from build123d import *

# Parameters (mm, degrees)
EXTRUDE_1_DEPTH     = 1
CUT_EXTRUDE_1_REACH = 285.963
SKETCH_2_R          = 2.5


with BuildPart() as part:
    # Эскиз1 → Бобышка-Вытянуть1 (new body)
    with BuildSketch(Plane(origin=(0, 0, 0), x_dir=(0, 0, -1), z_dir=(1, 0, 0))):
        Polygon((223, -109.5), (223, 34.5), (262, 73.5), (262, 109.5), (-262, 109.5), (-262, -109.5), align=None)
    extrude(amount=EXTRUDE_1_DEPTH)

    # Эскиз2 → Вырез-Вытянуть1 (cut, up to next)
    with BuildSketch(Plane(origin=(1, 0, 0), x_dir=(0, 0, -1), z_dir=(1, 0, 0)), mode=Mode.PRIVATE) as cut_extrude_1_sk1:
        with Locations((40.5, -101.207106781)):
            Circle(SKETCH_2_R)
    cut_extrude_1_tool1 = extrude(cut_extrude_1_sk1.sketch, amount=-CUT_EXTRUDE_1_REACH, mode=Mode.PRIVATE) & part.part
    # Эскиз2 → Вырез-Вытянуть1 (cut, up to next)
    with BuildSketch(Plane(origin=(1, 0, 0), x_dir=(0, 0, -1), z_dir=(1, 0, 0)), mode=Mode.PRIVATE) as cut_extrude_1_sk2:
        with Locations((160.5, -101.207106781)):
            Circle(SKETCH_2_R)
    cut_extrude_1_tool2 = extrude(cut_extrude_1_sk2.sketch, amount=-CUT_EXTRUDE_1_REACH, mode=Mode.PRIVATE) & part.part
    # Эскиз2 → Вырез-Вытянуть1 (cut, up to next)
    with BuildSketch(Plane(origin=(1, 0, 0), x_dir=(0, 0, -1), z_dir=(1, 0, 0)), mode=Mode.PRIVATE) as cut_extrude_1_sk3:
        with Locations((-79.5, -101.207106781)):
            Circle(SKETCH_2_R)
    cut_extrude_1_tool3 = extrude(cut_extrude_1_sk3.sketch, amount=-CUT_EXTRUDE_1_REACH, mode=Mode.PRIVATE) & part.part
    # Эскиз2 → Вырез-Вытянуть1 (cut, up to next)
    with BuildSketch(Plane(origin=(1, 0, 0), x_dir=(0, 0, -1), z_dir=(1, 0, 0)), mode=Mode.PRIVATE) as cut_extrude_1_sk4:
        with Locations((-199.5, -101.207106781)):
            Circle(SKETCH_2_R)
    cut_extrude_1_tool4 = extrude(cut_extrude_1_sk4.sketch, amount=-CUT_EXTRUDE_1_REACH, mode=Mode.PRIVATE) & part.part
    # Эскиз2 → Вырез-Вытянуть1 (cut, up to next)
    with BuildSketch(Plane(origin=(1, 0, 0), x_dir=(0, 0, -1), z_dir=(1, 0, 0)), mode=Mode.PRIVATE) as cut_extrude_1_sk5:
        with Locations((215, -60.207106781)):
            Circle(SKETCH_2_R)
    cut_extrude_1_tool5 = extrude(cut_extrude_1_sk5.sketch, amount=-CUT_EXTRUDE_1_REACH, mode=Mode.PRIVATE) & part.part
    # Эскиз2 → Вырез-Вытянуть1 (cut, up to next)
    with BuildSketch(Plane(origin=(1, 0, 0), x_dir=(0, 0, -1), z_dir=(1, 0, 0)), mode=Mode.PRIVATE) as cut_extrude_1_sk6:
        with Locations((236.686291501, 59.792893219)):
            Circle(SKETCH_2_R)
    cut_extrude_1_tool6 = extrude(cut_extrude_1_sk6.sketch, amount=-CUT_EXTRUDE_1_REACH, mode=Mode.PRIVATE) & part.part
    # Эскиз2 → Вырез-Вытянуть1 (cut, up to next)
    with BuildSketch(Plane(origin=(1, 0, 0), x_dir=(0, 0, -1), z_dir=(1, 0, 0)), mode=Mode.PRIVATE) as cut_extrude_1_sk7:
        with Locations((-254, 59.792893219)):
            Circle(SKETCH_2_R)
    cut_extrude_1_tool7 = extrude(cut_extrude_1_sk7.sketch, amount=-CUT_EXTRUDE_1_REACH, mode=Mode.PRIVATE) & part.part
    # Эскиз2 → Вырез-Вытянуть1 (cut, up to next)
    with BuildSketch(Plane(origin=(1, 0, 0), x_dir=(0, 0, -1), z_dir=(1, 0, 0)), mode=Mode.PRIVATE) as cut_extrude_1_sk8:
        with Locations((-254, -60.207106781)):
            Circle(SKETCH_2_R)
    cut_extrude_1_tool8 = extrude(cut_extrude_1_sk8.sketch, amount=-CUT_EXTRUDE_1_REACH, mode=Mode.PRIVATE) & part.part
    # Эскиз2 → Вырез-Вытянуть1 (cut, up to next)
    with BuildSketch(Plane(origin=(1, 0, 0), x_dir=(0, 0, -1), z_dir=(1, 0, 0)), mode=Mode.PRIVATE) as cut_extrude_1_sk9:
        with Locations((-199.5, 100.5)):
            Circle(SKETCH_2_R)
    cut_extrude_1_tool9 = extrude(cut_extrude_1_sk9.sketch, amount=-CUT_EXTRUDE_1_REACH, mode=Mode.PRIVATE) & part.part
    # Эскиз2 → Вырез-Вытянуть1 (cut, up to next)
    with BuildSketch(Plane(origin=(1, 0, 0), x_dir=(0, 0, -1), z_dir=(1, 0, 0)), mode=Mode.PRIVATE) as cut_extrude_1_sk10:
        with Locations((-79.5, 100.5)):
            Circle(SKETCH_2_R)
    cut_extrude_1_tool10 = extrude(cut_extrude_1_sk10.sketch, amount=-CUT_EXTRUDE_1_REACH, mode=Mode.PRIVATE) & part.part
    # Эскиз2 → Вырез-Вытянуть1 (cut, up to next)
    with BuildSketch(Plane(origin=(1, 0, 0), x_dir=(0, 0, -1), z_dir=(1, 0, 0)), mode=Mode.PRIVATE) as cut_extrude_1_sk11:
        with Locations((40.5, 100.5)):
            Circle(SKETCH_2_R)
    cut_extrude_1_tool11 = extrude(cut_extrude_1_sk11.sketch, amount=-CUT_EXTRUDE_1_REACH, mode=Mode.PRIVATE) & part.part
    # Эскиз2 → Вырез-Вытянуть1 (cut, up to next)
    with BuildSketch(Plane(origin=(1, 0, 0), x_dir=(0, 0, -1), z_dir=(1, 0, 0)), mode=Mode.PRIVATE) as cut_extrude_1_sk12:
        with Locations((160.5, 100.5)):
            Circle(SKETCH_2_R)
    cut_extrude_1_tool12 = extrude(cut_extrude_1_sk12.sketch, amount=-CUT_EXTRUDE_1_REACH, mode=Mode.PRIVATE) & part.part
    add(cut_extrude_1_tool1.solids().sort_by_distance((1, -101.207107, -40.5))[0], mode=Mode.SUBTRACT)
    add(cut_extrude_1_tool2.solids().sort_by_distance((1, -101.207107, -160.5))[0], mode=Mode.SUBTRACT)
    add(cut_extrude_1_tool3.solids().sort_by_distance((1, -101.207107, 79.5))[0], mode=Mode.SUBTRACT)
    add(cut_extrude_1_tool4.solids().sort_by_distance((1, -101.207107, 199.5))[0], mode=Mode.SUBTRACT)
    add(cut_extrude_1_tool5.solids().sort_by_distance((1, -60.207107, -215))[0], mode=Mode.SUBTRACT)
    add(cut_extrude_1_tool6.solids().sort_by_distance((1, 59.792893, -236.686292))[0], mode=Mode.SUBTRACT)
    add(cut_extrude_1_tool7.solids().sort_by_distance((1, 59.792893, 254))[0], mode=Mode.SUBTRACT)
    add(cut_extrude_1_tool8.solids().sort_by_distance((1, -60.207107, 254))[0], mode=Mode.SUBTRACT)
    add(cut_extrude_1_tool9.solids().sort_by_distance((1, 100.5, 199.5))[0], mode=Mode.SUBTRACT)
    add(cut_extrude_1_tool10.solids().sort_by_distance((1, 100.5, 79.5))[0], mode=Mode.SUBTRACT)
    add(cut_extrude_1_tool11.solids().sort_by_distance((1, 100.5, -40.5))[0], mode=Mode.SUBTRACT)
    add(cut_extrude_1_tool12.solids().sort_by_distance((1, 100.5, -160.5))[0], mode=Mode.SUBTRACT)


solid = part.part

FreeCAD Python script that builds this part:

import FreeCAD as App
import Part
import Sketcher

V = App.Vector


def add_polygon(sketch, points):
    """Adds a closed chain of lines whose ends are joined by coincident constraints."""
    first, n = sketch.GeometryCount, len(points)
    for a, b in zip(points, points[1:] + points[:1]):
        sketch.addGeometry(Part.LineSegment(App.Vector(*a, 0), App.Vector(*b, 0)), False)
    for i in range(n):
        sketch.addConstraint(Sketcher.Constraint("Coincident", first + i, 2, first + (i + 1) % n, 1))

doc = App.newDocument("Part")
body = doc.addObject("PartDesign::Body", "Body")

# Sketch on YZ plane
sketch1 = doc.addObject("Sketcher::SketchObject", "Sketch")
body.addObject(sketch1)
sketch1.AttachmentSupport = (doc.YZ_Plane, [""])
sketch1.MapMode = "FlatFace"
add_polygon(sketch1, [(-110, -223), (34, -223), (74, -262), (110, -262), (110, 262), (-110, 262)])  # lines 0-5
sketch1.addConstraint([
    Sketcher.Constraint("Horizontal", 0),
    Sketcher.Constraint("Horizontal", 2),
    Sketcher.Constraint("Vertical", 3),
    Sketcher.Constraint("Horizontal", 4),
    Sketcher.Constraint("Vertical", 5),
    Sketcher.Constraint("Symmetric", 2, 2, 4, 2, -1, 1),
    Sketcher.Constraint("DistanceX", 0, 1, 0, 2, 144.0),
    Sketcher.Constraint("DistanceX", 2, 1, 2, 2, 36.0),
    Sketcher.Constraint("DistanceX", 4, 2, 4, 1, 219.0),
    Sketcher.Constraint("DistanceY", 3, 1, 3, 2, 524.0),
    Sketcher.Constraint("DistanceY", 5, 2, 5, 1, 485.0),
])
pad1 = doc.addObject("PartDesign::Pad", "Pad")
body.addObject(pad1)
pad1.Profile = sketch1
pad1.Length = 1

# Sketch on YZ plane
sketch2 = doc.addObject("Sketcher::SketchObject", "Sketch001")
body.addObject(sketch2)
sketch2.AttachmentSupport = (doc.YZ_Plane, [""])
sketch2.MapMode = "FlatFace"
sketch2.AttachmentOffset = App.Placement(V(0, 0, 1), App.Rotation())
sketch2.addGeometry(Part.Circle(V(-101.2, -40.5, 0), V(0, 0, 1), 2.5), False)
sketch2.addConstraint([
    Sketcher.Constraint("Diameter", 0, 5.0),
    Sketcher.Constraint("DistanceY", 0, 3, -1, 1, 40.5),
    Sketcher.Constraint("DistanceX", 0, 3, -1, 1, 101.207107),
])
pocket1 = doc.addObject("PartDesign::Pocket", "Pocket")
body.addObject(pocket1)
pocket1.Profile = sketch2
pocket1.Type = "UpToFirst"

# Sketch on YZ plane
sketch3 = doc.addObject("Sketcher::SketchObject", "Sketch002")
body.addObject(sketch3)
sketch3.AttachmentSupport = (doc.YZ_Plane, [""])
sketch3.MapMode = "FlatFace"
sketch3.AttachmentOffset = App.Placement(V(0, 0, 1), App.Rotation())
sketch3.addGeometry(Part.Circle(V(-101.2, -160.5, 0), V(0, 0, 1), 2.5), False)
sketch3.addConstraint([
    Sketcher.Constraint("Diameter", 0, 5.0),
    Sketcher.Constraint("DistanceY", 0, 3, -1, 1, 160.5),
    Sketcher.Constraint("DistanceX", 0, 3, -1, 1, 101.207107),
])
pocket2 = doc.addObject("PartDesign::Pocket", "Pocket001")
body.addObject(pocket2)
pocket2.Profile = sketch3
pocket2.Type = "UpToFirst"

# Sketch on YZ plane
sketch4 = doc.addObject("Sketcher::SketchObject", "Sketch003")
body.addObject(sketch4)
sketch4.AttachmentSupport = (doc.YZ_Plane, [""])
sketch4.MapMode = "FlatFace"
sketch4.AttachmentOffset = App.Placement(V(0, 0, 1), App.Rotation())
sketch4.addGeometry(Part.Circle(V(-101.2, 79.5, 0), V(0, 0, 1), 2.5), False)
sketch4.addConstraint([
    Sketcher.Constraint("Diameter", 0, 5.0),
    Sketcher.Constraint("DistanceY", -1, 1, 0, 3, 79.5),
    Sketcher.Constraint("DistanceX", 0, 3, -1, 1, 101.207107),
])
pocket3 = doc.addObject("PartDesign::Pocket", "Pocket002")
body.addObject(pocket3)
pocket3.Profile = sketch4
pocket3.Type = "UpToFirst"

# Sketch on YZ plane
sketch5 = doc.addObject("Sketcher::SketchObject", "Sketch004")
body.addObject(sketch5)
sketch5.AttachmentSupport = (doc.YZ_Plane, [""])
sketch5.MapMode = "FlatFace"
sketch5.AttachmentOffset = App.Placement(V(0, 0, 1), App.Rotation())
sketch5.addGeometry(Part.Circle(V(-101.2, 199.5, 0), V(0, 0, 1), 2.5), False)
sketch5.addConstraint([
    Sketcher.Constraint("Diameter", 0, 5.0),
    Sketcher.Constraint("DistanceY", -1, 1, 0, 3, 199.5),
    Sketcher.Constraint("DistanceX", 0, 3, -1, 1, 101.207107),
])
pocket4 = doc.addObject("PartDesign::Pocket", "Pocket003")
body.addObject(pocket4)
pocket4.Profile = sketch5
pocket4.Type = "UpToFirst"

# Sketch on YZ plane
sketch6 = doc.addObject("Sketcher::SketchObject", "Sketch005")
body.addObject(sketch6)
sketch6.AttachmentSupport = (doc.YZ_Plane, [""])
sketch6.MapMode = "FlatFace"
sketch6.AttachmentOffset = App.Placement(V(0, 0, 1), App.Rotation())
sketch6.addGeometry(Part.Circle(V(-60.2, -215, 0), V(0, 0, 1), 2.5), False)
sketch6.addConstraint([
    Sketcher.Constraint("Diameter", 0, 5.0),
    Sketcher.Constraint("DistanceY", 0, 3, -1, 1, 215.0),
    Sketcher.Constraint("DistanceX", 0, 3, -1, 1, 60.207107),
])
pocket5 = doc.addObject("PartDesign::Pocket", "Pocket004")
body.addObject(pocket5)
pocket5.Profile = sketch6
pocket5.Type = "UpToFirst"

# Sketch on YZ plane
sketch7 = doc.addObject("Sketcher::SketchObject", "Sketch006")
body.addObject(sketch7)
sketch7.AttachmentSupport = (doc.YZ_Plane, [""])
sketch7.MapMode = "FlatFace"
sketch7.AttachmentOffset = App.Placement(V(0, 0, 1), App.Rotation())
sketch7.addGeometry(Part.Circle(V(59.8, -236.7, 0), V(0, 0, 1), 2.5), False)
sketch7.addConstraint([
    Sketcher.Constraint("Diameter", 0, 5.0),
    Sketcher.Constraint("DistanceY", 0, 3, -1, 1, 236.686292),
    Sketcher.Constraint("DistanceX", -1, 1, 0, 3, 59.792893),
])
pocket6 = doc.addObject("PartDesign::Pocket", "Pocket005")
body.addObject(pocket6)
pocket6.Profile = sketch7
pocket6.Type = "UpToFirst"

# Sketch on YZ plane
sketch8 = doc.addObject("Sketcher::SketchObject", "Sketch007")
body.addObject(sketch8)
sketch8.AttachmentSupport = (doc.YZ_Plane, [""])
sketch8.MapMode = "FlatFace"
sketch8.AttachmentOffset = App.Placement(V(0, 0, 1), App.Rotation())
sketch8.addGeometry(Part.Circle(V(59.8, 254, 0), V(0, 0, 1), 2.5), False)
sketch8.addConstraint([
    Sketcher.Constraint("Diameter", 0, 5.0),
    Sketcher.Constraint("DistanceY", -1, 1, 0, 3, 254.0),
    Sketcher.Constraint("DistanceX", -1, 1, 0, 3, 59.792893),
])
pocket7 = doc.addObject("PartDesign::Pocket", "Pocket006")
body.addObject(pocket7)
pocket7.Profile = sketch8
pocket7.Type = "UpToFirst"

# Sketch on YZ plane
sketch9 = doc.addObject("Sketcher::SketchObject", "Sketch008")
body.addObject(sketch9)
sketch9.AttachmentSupport = (doc.YZ_Plane, [""])
sketch9.MapMode = "FlatFace"
sketch9.AttachmentOffset = App.Placement(V(0, 0, 1), App.Rotation())
sketch9.addGeometry(Part.Circle(V(-60.2, 254, 0), V(0, 0, 1), 2.5), False)
sketch9.addConstraint([
    Sketcher.Constraint("Diameter", 0, 5.0),
    Sketcher.Constraint("DistanceY", -1, 1, 0, 3, 254.0),
    Sketcher.Constraint("DistanceX", 0, 3, -1, 1, 60.207107),
])
pocket8 = doc.addObject("PartDesign::Pocket", "Pocket007")
body.addObject(pocket8)
pocket8.Profile = sketch9
pocket8.Type = "UpToFirst"

# Sketch on YZ plane
sketch10 = doc.addObject("Sketcher::SketchObject", "Sketch009")
body.addObject(sketch10)
sketch10.AttachmentSupport = (doc.YZ_Plane, [""])
sketch10.MapMode = "FlatFace"
sketch10.AttachmentOffset = App.Placement(V(0, 0, 1), App.Rotation())
sketch10.addGeometry(Part.Circle(V(100.5, 199.5, 0), V(0, 0, 1), 2.5), False)
sketch10.addConstraint([
    Sketcher.Constraint("Diameter", 0, 5.0),
    Sketcher.Constraint("DistanceX", -1, 1, 0, 3, 100.5),
    Sketcher.Constraint("DistanceY", -1, 1, 0, 3, 199.5),
])
pocket9 = doc.addObject("PartDesign::Pocket", "Pocket008")
body.addObject(pocket9)
pocket9.Profile = sketch10
pocket9.Type = "UpToFirst"

# Sketch on YZ plane
sketch11 = doc.addObject("Sketcher::SketchObject", "Sketch010")
body.addObject(sketch11)
sketch11.AttachmentSupport = (doc.YZ_Plane, [""])
sketch11.MapMode = "FlatFace"
sketch11.AttachmentOffset = App.Placement(V(0, 0, 1), App.Rotation())
sketch11.addGeometry(Part.Circle(V(100.5, 79.5, 0), V(0, 0, 1), 2.5), False)
sketch11.addConstraint([
    Sketcher.Constraint("Diameter", 0, 5.0),
    Sketcher.Constraint("DistanceX", -1, 1, 0, 3, 100.5),
    Sketcher.Constraint("DistanceY", -1, 1, 0, 3, 79.5),
])
pocket10 = doc.addObject("PartDesign::Pocket", "Pocket009")
body.addObject(pocket10)
pocket10.Profile = sketch11
pocket10.Type = "UpToFirst"

# Sketch on YZ plane
sketch12 = doc.addObject("Sketcher::SketchObject", "Sketch011")
body.addObject(sketch12)
sketch12.AttachmentSupport = (doc.YZ_Plane, [""])
sketch12.MapMode = "FlatFace"
sketch12.AttachmentOffset = App.Placement(V(0, 0, 1), App.Rotation())
sketch12.addGeometry(Part.Circle(V(100.5, -40.5, 0), V(0, 0, 1), 2.5), False)
sketch12.addConstraint([
    Sketcher.Constraint("Diameter", 0, 5.0),
    Sketcher.Constraint("DistanceX", -1, 1, 0, 3, 100.5),
    Sketcher.Constraint("DistanceY", 0, 3, -1, 1, 40.5),
])
pocket11 = doc.addObject("PartDesign::Pocket", "Pocket010")
body.addObject(pocket11)
pocket11.Profile = sketch12
pocket11.Type = "UpToFirst"

# Sketch on YZ plane
sketch13 = doc.addObject("Sketcher::SketchObject", "Sketch012")
body.addObject(sketch13)
sketch13.AttachmentSupport = (doc.YZ_Plane, [""])
sketch13.MapMode = "FlatFace"
sketch13.AttachmentOffset = App.Placement(V(0, 0, 1), App.Rotation())
sketch13.addGeometry(Part.Circle(V(100.5, -160.5, 0), V(0, 0, 1), 2.5), False)
sketch13.addConstraint([
    Sketcher.Constraint("Diameter", 0, 5.0),
    Sketcher.Constraint("DistanceX", -1, 1, 0, 3, 100.5),
    Sketcher.Constraint("DistanceY", 0, 3, -1, 1, 160.5),
])
pocket12 = doc.addObject("PartDesign::Pocket", "Pocket011")
body.addObject(pocket12)
pocket12.Profile = sketch13
pocket12.Type = "UpToFirst"

doc.recompute()
